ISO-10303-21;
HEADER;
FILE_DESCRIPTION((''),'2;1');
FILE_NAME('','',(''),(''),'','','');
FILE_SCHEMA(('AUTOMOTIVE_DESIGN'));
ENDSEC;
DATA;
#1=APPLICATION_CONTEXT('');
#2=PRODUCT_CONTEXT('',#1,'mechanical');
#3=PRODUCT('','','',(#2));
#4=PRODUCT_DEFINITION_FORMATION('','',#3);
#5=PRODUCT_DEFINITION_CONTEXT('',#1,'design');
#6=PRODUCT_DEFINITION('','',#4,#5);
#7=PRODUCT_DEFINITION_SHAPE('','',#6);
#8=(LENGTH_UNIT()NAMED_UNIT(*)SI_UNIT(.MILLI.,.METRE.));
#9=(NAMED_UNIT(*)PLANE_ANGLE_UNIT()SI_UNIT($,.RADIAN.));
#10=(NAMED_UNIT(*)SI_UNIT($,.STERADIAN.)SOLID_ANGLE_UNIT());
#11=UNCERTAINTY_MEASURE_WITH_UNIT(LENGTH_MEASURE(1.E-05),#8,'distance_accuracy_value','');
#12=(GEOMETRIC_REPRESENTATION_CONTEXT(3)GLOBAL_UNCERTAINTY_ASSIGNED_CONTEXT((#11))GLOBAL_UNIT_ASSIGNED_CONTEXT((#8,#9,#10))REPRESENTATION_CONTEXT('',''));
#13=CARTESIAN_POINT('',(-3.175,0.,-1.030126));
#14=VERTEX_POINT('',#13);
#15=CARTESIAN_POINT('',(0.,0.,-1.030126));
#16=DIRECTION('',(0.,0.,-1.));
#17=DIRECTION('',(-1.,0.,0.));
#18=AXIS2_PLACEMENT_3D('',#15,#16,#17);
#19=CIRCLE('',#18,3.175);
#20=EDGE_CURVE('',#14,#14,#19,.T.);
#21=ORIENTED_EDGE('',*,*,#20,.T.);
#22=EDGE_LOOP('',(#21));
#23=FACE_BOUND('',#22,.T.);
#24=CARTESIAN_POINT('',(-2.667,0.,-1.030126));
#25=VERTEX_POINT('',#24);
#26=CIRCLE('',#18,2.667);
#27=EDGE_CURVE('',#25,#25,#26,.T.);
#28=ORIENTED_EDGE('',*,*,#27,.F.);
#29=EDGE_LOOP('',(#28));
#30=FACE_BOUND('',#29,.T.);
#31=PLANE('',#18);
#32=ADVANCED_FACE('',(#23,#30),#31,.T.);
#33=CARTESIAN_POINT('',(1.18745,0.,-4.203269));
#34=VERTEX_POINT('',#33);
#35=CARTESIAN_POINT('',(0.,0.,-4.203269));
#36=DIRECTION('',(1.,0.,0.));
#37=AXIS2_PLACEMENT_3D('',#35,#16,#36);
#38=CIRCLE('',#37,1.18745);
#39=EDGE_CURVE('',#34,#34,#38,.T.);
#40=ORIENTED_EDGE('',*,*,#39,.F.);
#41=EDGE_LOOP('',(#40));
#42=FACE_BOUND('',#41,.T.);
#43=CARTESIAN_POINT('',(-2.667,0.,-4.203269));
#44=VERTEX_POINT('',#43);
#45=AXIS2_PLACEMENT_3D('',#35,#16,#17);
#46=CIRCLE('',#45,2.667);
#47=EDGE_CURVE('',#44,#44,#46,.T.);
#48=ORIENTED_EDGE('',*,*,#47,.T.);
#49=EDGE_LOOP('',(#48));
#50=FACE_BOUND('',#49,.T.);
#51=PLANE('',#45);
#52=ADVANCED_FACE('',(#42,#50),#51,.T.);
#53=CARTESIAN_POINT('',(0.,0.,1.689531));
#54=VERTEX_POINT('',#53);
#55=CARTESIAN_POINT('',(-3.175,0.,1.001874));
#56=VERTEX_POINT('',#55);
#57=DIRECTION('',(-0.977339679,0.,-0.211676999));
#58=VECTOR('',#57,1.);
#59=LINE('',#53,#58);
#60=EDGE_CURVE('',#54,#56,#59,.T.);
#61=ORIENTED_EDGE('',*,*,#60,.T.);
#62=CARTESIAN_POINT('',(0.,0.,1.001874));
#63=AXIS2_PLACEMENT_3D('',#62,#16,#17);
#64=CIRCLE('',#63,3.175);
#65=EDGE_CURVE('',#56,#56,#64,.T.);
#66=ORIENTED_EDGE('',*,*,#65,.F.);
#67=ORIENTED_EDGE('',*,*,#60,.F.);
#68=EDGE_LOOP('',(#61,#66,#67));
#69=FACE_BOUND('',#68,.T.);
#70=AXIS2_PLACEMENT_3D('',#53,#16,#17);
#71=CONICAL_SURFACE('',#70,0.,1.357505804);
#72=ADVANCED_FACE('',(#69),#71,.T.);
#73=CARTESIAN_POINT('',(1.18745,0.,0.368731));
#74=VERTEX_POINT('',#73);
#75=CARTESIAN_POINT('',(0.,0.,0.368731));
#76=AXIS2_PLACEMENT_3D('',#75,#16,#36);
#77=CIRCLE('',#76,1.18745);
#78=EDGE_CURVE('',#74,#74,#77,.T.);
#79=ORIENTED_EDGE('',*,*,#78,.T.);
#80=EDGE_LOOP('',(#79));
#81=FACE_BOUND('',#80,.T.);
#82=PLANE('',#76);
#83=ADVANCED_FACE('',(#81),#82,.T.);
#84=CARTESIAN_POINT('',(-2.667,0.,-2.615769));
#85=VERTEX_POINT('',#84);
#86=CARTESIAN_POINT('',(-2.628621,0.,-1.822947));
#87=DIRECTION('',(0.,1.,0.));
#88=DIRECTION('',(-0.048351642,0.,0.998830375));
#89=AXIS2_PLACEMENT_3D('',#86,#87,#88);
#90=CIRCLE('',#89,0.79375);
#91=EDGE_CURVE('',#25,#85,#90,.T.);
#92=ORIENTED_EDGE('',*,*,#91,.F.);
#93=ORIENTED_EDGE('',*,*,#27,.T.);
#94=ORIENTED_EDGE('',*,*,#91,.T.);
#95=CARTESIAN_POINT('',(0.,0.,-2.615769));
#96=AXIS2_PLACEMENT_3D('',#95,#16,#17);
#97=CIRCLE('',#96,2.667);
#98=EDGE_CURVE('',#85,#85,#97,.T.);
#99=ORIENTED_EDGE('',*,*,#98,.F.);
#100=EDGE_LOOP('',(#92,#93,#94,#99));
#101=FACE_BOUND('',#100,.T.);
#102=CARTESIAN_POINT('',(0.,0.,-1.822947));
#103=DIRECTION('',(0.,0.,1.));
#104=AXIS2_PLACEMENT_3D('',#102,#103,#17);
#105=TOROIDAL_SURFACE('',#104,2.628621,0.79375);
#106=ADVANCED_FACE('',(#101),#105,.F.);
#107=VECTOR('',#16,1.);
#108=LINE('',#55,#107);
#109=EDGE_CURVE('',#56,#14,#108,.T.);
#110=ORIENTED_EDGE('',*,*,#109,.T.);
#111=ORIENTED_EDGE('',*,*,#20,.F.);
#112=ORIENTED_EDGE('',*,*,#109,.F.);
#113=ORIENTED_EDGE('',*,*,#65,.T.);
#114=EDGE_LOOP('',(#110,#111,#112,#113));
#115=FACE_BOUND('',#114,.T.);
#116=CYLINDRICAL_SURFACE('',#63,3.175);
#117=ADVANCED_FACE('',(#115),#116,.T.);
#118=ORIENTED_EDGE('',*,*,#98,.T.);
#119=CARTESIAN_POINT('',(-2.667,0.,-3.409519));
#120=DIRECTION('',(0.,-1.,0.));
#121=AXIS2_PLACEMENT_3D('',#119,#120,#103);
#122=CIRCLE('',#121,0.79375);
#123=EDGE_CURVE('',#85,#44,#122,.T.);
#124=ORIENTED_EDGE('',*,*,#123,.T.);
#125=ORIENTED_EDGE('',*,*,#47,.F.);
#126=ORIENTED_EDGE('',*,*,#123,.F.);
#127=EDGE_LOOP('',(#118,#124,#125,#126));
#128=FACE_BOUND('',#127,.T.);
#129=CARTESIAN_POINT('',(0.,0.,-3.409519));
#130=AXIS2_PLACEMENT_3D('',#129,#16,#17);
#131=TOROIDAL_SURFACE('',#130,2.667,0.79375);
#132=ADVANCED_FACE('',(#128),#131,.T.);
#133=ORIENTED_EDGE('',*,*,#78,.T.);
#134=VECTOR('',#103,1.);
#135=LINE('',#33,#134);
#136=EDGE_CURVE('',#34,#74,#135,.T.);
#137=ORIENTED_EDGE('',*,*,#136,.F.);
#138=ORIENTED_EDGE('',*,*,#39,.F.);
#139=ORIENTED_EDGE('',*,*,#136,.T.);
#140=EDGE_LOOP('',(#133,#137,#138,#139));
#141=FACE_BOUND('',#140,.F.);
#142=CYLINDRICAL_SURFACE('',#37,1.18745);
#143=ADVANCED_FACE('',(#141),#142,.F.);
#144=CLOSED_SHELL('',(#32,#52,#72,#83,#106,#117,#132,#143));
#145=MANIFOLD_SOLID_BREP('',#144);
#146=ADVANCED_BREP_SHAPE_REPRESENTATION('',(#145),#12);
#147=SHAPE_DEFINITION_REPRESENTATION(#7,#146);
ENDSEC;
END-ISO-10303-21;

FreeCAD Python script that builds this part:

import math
import FreeCAD as App
import Part
import Sketcher

V = App.Vector
Q = App.Units.Quantity

doc = App.newDocument("Part")
body = doc.addObject("PartDesign::Body", "Body")

# Sketch on XZ plane
sketch1 = doc.addObject("Sketcher::SketchObject", "Sketch")
body.addObject(sketch1)
sketch1.AttachmentSupport = (doc.XZ_Plane, [""])
sketch1.MapMode = "FlatFace"
sketch1.addGeometry([
    Part.LineSegment(V(0, -4.2, 0), V(0, 1.7, 0)),  # 0
    Part.LineSegment(V(0, 1.7, 0), V(-3.2, 1, 0)),  # 1
    Part.LineSegment(V(-3.2, 1, 0), V(-3.2, -1, 0)),  # 2
    Part.LineSegment(V(-3.2, -1, 0), V(-2.7, -1, 0)),  # 3
    Part.ArcOfCircle(Part.Circle(V(-2.6, -1.8, 0), V(0, 0, 1), 0.8), math.radians(-93), math.radians(93)),  # 4
    Part.ArcOfCircle(Part.Circle(V(-2.7, -3.4, 0), V(0, 0, 1), 0.8), math.radians(90), math.radians(270)),  # 5
    Part.LineSegment(V(-2.7, -4.2, 0), V(0, -4.2, 0)),  # 6
], False)
sketch1.addConstraint([
    Sketcher.Constraint("Coincident", 0, 2, 1, 1),
    Sketcher.Constraint("Coincident", 1, 2, 2, 1),
    Sketcher.Constraint("Coincident", 2, 2, 3, 1),
    Sketcher.Constraint("Coincident", 3, 2, 4, 2),
    Sketcher.Constraint("Coincident", 4, 1, 5, 1),
    Sketcher.Constraint("Tangent", 5, 2, 6, 1),
    Sketcher.Constraint("Coincident", 6, 2, 0, 1),
    Sketcher.Constraint("Vertical", 0),
    Sketcher.Constraint("Vertical", 2),
    Sketcher.Constraint("Horizontal", 3),
    Sketcher.Constraint("Horizontal", 6),
    Sketcher.Constraint("Equal", 4, 5),
    Sketcher.Constraint("PointOnObject", 0, 2, -2),
    Sketcher.Constraint("Vertical", 5, 3, 3, 2),
    Sketcher.Constraint("Vertical", 3, 2, 4, 1),
    Sketcher.Constraint("Radius", 4, Q("0.03125 in")),
    Sketcher.Constraint("DistanceX", 3, 1, 3, 2, Q("0.02 in")),
    Sketcher.Constraint("DistanceY", 2, 2, 2, 1, Q("0.08 in")),
    Sketcher.Constraint("DistanceX", 6, 1, 6, 2, Q("0.105 in")),
    Sketcher.Constraint("DistanceY", 0, 1, 0, 2, Q("0.232 in")),
    Sketcher.Constraint("DistanceX", 4, 3, -1, 1, 2.628621),
    Sketcher.Constraint("DistanceY", 5, 3, -1, 1, 3.409519),
])
revolution = doc.addObject("PartDesign::Revolution", "Revolution")
body.addObject(revolution)
revolution.Profile = sketch1
revolution.ReferenceAxis = (sketch1, ["V_Axis"])
revolution.Angle = 360

# Sketch on XY plane
sketch2 = doc.addObject("Sketcher::SketchObject", "Sketch001")
body.addObject(sketch2)
sketch2.AttachmentSupport = (doc.XY_Plane, [""])
sketch2.MapMode = "FlatFace"
sketch2.AttachmentOffset = App.Placement(V(0, 0, -4.203269), App.Rotation())
sketch2.addGeometry(Part.Circle(V(0, 0, 0), V(0, 0, 1), 1.2), False)
sketch2.addConstraint([
    Sketcher.Constraint("Coincident", 0, 3, -1, 1),
    Sketcher.Constraint("Diameter", 0, Q("0.0935 in")),
])
pocket1 = doc.addObject("PartDesign::Pocket", "Pocket")
body.addObject(pocket1)
pocket1.Profile = sketch2
pocket1.Length = Q("0.18 in")
pocket1.Reversed = True

doc.recompute()
